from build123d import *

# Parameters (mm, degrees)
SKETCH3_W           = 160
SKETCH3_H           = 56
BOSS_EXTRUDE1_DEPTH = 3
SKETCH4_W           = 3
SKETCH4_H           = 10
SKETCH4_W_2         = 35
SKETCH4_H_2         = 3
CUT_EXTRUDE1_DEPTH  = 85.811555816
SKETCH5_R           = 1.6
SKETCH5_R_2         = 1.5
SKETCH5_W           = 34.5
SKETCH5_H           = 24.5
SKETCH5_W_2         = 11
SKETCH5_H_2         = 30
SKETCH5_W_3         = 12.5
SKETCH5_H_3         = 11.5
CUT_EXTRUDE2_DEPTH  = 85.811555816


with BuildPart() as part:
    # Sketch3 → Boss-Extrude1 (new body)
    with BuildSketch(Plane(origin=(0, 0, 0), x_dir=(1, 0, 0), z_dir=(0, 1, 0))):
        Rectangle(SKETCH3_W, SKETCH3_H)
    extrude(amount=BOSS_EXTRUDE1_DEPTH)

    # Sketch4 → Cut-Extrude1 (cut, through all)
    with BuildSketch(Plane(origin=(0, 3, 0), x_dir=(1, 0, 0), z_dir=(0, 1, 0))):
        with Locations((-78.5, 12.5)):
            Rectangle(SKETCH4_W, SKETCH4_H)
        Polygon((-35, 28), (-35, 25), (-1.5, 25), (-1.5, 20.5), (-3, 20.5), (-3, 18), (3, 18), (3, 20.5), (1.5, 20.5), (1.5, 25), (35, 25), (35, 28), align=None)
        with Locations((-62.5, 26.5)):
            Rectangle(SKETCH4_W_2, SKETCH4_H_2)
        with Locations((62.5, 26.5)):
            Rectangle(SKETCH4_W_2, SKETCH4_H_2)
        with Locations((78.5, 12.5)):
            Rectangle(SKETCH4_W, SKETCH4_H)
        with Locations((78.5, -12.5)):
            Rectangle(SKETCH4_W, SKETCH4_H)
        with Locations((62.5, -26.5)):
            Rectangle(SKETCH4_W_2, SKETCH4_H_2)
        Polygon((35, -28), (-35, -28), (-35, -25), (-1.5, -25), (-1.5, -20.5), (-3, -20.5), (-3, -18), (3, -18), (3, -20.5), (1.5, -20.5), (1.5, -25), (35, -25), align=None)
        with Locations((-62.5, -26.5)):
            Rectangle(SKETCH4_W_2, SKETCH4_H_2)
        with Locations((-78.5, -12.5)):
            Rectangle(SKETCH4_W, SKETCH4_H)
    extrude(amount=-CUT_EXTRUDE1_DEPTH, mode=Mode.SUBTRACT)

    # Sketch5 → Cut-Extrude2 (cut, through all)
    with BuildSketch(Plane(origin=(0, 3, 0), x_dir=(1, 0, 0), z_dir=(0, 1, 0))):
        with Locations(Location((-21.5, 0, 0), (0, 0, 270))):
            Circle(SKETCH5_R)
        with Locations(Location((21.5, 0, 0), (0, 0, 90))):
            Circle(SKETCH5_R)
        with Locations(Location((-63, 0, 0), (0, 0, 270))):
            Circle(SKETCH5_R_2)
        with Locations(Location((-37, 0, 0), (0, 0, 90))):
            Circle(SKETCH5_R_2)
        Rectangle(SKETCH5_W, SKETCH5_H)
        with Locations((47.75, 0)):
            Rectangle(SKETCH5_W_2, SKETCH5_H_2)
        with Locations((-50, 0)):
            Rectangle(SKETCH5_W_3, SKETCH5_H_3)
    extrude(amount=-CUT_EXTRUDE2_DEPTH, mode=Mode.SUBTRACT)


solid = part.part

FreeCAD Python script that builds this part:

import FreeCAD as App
import Part
import Sketcher

doc = App.newDocument("Part")
body = doc.addObject("PartDesign::Body", "Body")

sketch1 = doc.addObject("Sketcher::SketchObject", "Sketch")
body.addObject(sketch1)
sketch1.AttachmentSupport = (doc.XZ_Plane, [""])
sketch1.MapMode = "FlatFace"
sketch1.addGeometry([
    Part.LineSegment(App.Vector(-80, -28, 0), App.Vector(-80, 28, 0)),
    Part.LineSegment(App.Vector(-80, 28, 0), App.Vector(80, 28, 0)),
    Part.LineSegment(App.Vector(80, 28, 0), App.Vector(80, -28, 0)),
    Part.LineSegment(App.Vector(80, -28, 0), App.Vector(-80, -28, 0)),
], False)
sketch1.addConstraint([
    Sketcher.Constraint("Coincident", 0, 2, 1, 1),
    Sketcher.Constraint("Coincident", 1, 2, 2, 1),
    Sketcher.Constraint("Coincident", 2, 2, 3, 1),
    Sketcher.Constraint("Coincident", 3, 2, 0, 1),
    Sketcher.Constraint("Vertical", 0),
    Sketcher.Constraint("Horizontal", 1),
    Sketcher.Constraint("Vertical", 2),
    Sketcher.Constraint("Horizontal", 3),
    Sketcher.Constraint("Symmetric", 0, 2, 2, 2, -1, 1),
    Sketcher.Constraint("DistanceX", 1, 1, 1, 2, 160.0),
    Sketcher.Constraint("DistanceY", 0, 1, 0, 2, 56.0),
])
pad1 = doc.addObject("PartDesign::Pad", "Pad")
body.addObject(pad1)
pad1.Profile = sketch1
pad1.Length = 3
pad1.Reversed = True

sketch2 = doc.addObject("Sketcher::SketchObject", "Sketch001")
body.addObject(sketch2)
sketch2.AttachmentSupport = (doc.XZ_Plane, [""])
sketch2.MapMode = "FlatFace"
sketch2.AttachmentOffset = App.Placement(App.Vector(0, 0, -3), App.Rotation())
sketch2.addGeometry([
    Part.LineSegment(App.Vector(-80, -17.5, 0), App.Vector(-80, -7.5, 0)),
    Part.LineSegment(App.Vector(-80, -7.5, 0), App.Vector(-77, -7.5, 0)),
    Part.LineSegment(App.Vector(-77, -7.5, 0), App.Vector(-77, -17.5, 0)),
    Part.LineSegment(App.Vector(-77, -17.5, 0), App.Vector(-80, -17.5, 0)),
    Part.LineSegment(App.Vector(-35, -28, 0), App.Vector(-35, -25, 0)),
    Part.LineSegment(App.Vector(-35, -25, 0), App.Vector(-1.5, -25, 0)),
    Part.LineSegment(App.Vector(-1.5, -25, 0), App.Vector(-1.5, -20.5, 0)),
    Part.LineSegment(App.Vector(-1.5, -20.5, 0), App.Vector(-3, -20.5, 0)),
    Part.LineSegment(App.Vector(-3, -20.5, 0), App.Vector(-3, -18, 0)),
    Part.LineSegment(App.Vector(-3, -18, 0), App.Vector(3, -18, 0)),
    Part.LineSegment(App.Vector(3, -18, 0), App.Vector(3, -20.5, 0)),
    Part.LineSegment(App.Vector(3, -20.5, 0), App.Vector(1.5, -20.5, 0)),
    Part.LineSegment(App.Vector(1.5, -20.5, 0), App.Vector(1.5, -25, 0)),
    Part.LineSegment(App.Vector(1.5, -25, 0), App.Vector(35, -25, 0)),
    Part.LineSegment(App.Vector(35, -25, 0), App.Vector(35, -28, 0)),
    Part.LineSegment(App.Vector(35, -28, 0), App.Vector(-35, -28, 0)),
    Part.LineSegment(App.Vector(-80, -28, 0), App.Vector(-80, -25, 0)),
    Part.LineSegment(App.Vector(-80, -25, 0), App.Vector(-45, -25, 0)),
    Part.LineSegment(App.Vector(-45, -25, 0), App.Vector(-45, -28, 0)),
    Part.LineSegment(App.Vector(-45, -28, 0), App.Vector(-80, -28, 0)),
    Part.LineSegment(App.Vector(45, -28, 0), App.Vector(45, -25, 0)),
    Part.LineSegment(App.Vector(45, -25, 0), App.Vector(80, -25, 0)),
    Part.LineSegment(App.Vector(80, -25, 0), App.Vector(80, -28, 0)),
    Part.LineSegment(App.Vector(80, -28, 0), App.Vector(45, -28, 0)),
    Part.LineSegment(App.Vector(77, -17.5, 0), App.Vector(77, -7.5, 0)),
    Part.LineSegment(App.Vector(77, -7.5, 0), App.Vector(80, -7.5, 0)),
    Part.LineSegment(App.Vector(80, -7.5, 0), App.Vector(80, -17.5, 0)),
    Part.LineSegment(App.Vector(80, -17.5, 0), App.Vector(77, -17.5, 0)),
    Part.LineSegment(App.Vector(77, 7.5, 0), App.Vector(77, 17.5, 0)),
    Part.LineSegment(App.Vector(77, 17.5, 0), App.Vector(80, 17.5, 0)),
    Part.LineSegment(App.Vector(80, 17.5, 0), App.Vector(80, 7.5, 0)),
    Part.LineSegment(App.Vector(80, 7.5, 0), App.Vector(77, 7.5, 0)),
    Part.LineSegment(App.Vector(45, 25, 0), App.Vector(45, 28, 0)),
    Part.LineSegment(App.Vector(45, 28, 0), App.Vector(80, 28, 0)),
    Part.LineSegment(App.Vector(80, 28, 0), App.Vector(80, 25, 0)),
    Part.LineSegment(App.Vector(80, 25, 0), App.Vector(45, 25, 0)),
    Part.LineSegment(App.Vector(-35, 28, 0), App.Vector(35, 28, 0)),
    Part.LineSegment(App.Vector(35, 28, 0), App.Vector(35, 25, 0)),
    Part.LineSegment(App.Vector(35, 25, 0), App.Vector(1.5, 25, 0)),
    Part.LineSegment(App.Vector(1.5, 25, 0), App.Vector(1.5, 20.5, 0)),
    Part.LineSegment(App.Vector(1.5, 20.5, 0), App.Vector(3, 20.5, 0)),
    Part.LineSegment(App.Vector(3, 20.5, 0), App.Vector(3, 18, 0)),
    Part.LineSegment(App.Vector(3, 18, 0), App.Vector(-3, 18, 0)),
    Part.LineSegment(App.Vector(-3, 18, 0), App.Vector(-3, 20.5, 0)),
    Part.LineSegment(App.Vector(-3, 20.5, 0), App.Vector(-1.5, 20.5, 0)),
    Part.LineSegment(App.Vector(-1.5, 20.5, 0), App.Vector(-1.5, 25, 0)),
    Part.LineSegment(App.Vector(-1.5, 25, 0), App.Vector(-35, 25, 0)),
    Part.LineSegment(App.Vector(-35, 25, 0), App.Vector(-35, 28, 0)),
    Part.LineSegment(App.Vector(-80, 25, 0), App.Vector(-80, 28, 0)),
    Part.LineSegment(App.Vector(-80, 28, 0), App.Vector(-45, 28, 0)),
    Part.LineSegment(App.Vector(-45, 28, 0), App.Vector(-45, 25, 0)),
    Part.LineSegment(App.Vector(-45, 25, 0), App.Vector(-80, 25, 0)),
    Part.LineSegment(App.Vector(-80, 7.5, 0), App.Vector(-80, 17.5, 0)),
    Part.LineSegment(App.Vector(-80, 17.5, 0), App.Vector(-77, 17.5, 0)),
    Part.LineSegment(App.Vector(-77, 17.5, 0), App.Vector(-77, 7.5, 0)),
    Part.LineSegment(App.Vector(-77, 7.5, 0), App.Vector(-80, 7.5, 0)),
], False)
sketch2.addConstraint([
    Sketcher.Constraint("Coincident", 0, 2, 1, 1),
    Sketcher.Constraint("Coincident", 1, 2, 2, 1),
    Sketcher.Constraint("Coincident", 2, 2, 3, 1),
    Sketcher.Constraint("Coincident", 3, 2, 0, 1),
    Sketcher.Constraint("Coincident", 4, 2, 5, 1),
    Sketcher.Constraint("Coincident", 5, 2, 6, 1),
    Sketcher.Constraint("Coincident", 6, 2, 7, 1),
    Sketcher.Constraint("Coincident", 7, 2, 8, 1),
    Sketcher.Constraint("Coincident", 8, 2, 9, 1),
    Sketcher.Constraint("Coincident", 9, 2, 10, 1),
    Sketcher.Constraint("Coincident", 10, 2, 11, 1),
    Sketcher.Constraint("Coincident", 11, 2, 12, 1),
    Sketcher.Constraint("Coincident", 12, 2, 13, 1),
    Sketcher.Constraint("Coincident", 13, 2, 14, 1),
    Sketcher.Constraint("Coincident", 14, 2, 15, 1),
    Sketcher.Constraint("Coincident", 15, 2, 4, 1),
    Sketcher.Constraint("Coincident", 16, 2, 17, 1),
    Sketcher.Constraint("Coincident", 17, 2, 18, 1),
    Sketcher.Constraint("Coincident", 18, 2, 19, 1),
    Sketcher.Constraint("Coincident", 19, 2, 16, 1),
    Sketcher.Constraint("Coincident", 20, 2, 21, 1),
    Sketcher.Constraint("Coincident", 21, 2, 22, 1),
    Sketcher.Constraint("Coincident", 22, 2, 23, 1),
    Sketcher.Constraint("Coincident", 23, 2, 20, 1),
    Sketcher.Constraint("Coincident", 24, 2, 25, 1),
    Sketcher.Constraint("Coincident", 25, 2, 26, 1),
    Sketcher.Constraint("Coincident", 26, 2, 27, 1),
    Sketcher.Constraint("Coincident", 27, 2, 24, 1),
    Sketcher.Constraint("Coincident", 28, 2, 29, 1),
    Sketcher.Constraint("Coincident", 29, 2, 30, 1),
    Sketcher.Constraint("Coincident", 30, 2, 31, 1),
    Sketcher.Constraint("Coincident", 31, 2, 28, 1),
    Sketcher.Constraint("Coincident", 32, 2, 33, 1),
    Sketcher.Constraint("Coincident", 33, 2, 34, 1),
    Sketcher.Constraint("Coincident", 34, 2, 35, 1),
    Sketcher.Constraint("Coincident", 35, 2, 32, 1),
    Sketcher.Constraint("Coincident", 36, 2, 37, 1),
    Sketcher.Constraint("Coincident", 37, 2, 38, 1),
    Sketcher.Constraint("Coincident", 38, 2, 39, 1),
    Sketcher.Constraint("Coincident", 39, 2, 40, 1),
    Sketcher.Constraint("Coincident", 40, 2, 41, 1),
    Sketcher.Constraint("Coincident", 41, 2, 42, 1),
    Sketcher.Constraint("Coincident", 42, 2, 43, 1),
    Sketcher.Constraint("Coincident", 43, 2, 44, 1),
    Sketcher.Constraint("Coincident", 44, 2, 45, 1),
    Sketcher.Constraint("Coincident", 45, 2, 46, 1),
    Sketcher.Constraint("Coincident", 46, 2, 47, 1),
    Sketcher.Constraint("Coincident", 47, 2, 36, 1),
    Sketcher.Constraint("Coincident", 48, 2, 49, 1),
    Sketcher.Constraint("Coincident", 49, 2, 50, 1),
    Sketcher.Constraint("Coincident", 50, 2, 51, 1),
    Sketcher.Constraint("Coincident", 51, 2, 48, 1),
    Sketcher.Constraint("Coincident", 52, 2, 53, 1),
    Sketcher.Constraint("Coincident", 53, 2, 54, 1),
    Sketcher.Constraint("Coincident", 54, 2, 55, 1),
    Sketcher.Constraint("Coincident", 55, 2, 52, 1),
    Sketcher.Constraint("Vertical", 0),
    Sketcher.Constraint("Horizontal", 1),
    Sketcher.Constraint("Vertical", 2),
    Sketcher.Constraint("Horizontal", 3),
    Sketcher.Constraint("Vertical", 4),
    Sketcher.Constraint("Horizontal", 5),
    Sketcher.Constraint("Vertical", 6),
    Sketcher.Constraint("Horizontal", 7),
    Sketcher.Constraint("Vertical", 8),
    Sketcher.Constraint("Horizontal", 9),
    Sketcher.Constraint("Vertical", 10),
    Sketcher.Constraint("Horizontal", 11),
    Sketcher.Constraint("Vertical", 12),
    Sketcher.Constraint("Horizontal", 13),
    Sketcher.Constraint("Vertical", 14),
    Sketcher.Constraint("Horizontal", 15),
    Sketcher.Constraint("Vertical", 16),
    Sketcher.Constraint("Horizontal", 17),
    Sketcher.Constraint("Vertical", 18),
    Sketcher.Constraint("Horizontal", 19),
    Sketcher.Constraint("Vertical", 20),
    Sketcher.Constraint("Horizontal", 21),
    Sketcher.Constraint("Vertical", 22),
    Sketcher.Constraint("Horizontal", 23),
    Sketcher.Constraint("Vertical", 24),
    Sketcher.Constraint("Horizontal", 25),
    Sketcher.Constraint("Vertical", 26),
    Sketcher.Constraint("Horizontal", 27),
    Sketcher.Constraint("Vertical", 28),
    Sketcher.Constraint("Horizontal", 29),
    Sketcher.Constraint("Vertical", 30),
    Sketcher.Constraint("Horizontal", 31),
    Sketcher.Constraint("Vertical", 32),
    Sketcher.Constraint("Horizontal", 33),
    Sketcher.Constraint("Vertical", 34),
    Sketcher.Constraint("Horizontal", 35),
    Sketcher.Constraint("Horizontal", 36),
    Sketcher.Constraint("Vertical", 37),
    Sketcher.Constraint("Horizontal", 38),
    Sketcher.Constraint("Vertical", 39),
    Sketcher.Constraint("Horizontal", 40),
    Sketcher.Constraint("Vertical", 41),
    Sketcher.Constraint("Horizontal", 42),
    Sketcher.Constraint("Vertical", 43),
    Sketcher.Constraint("Horizontal", 44),
    Sketcher.Constraint("Vertical", 45),
    Sketcher.Constraint("Horizontal", 46),
    Sketcher.Constraint("Vertical", 47),
    Sketcher.Constraint("Vertical", 48),
    Sketcher.Constraint("Horizontal", 49),
    Sketcher.Constraint("Vertical", 50),
    Sketcher.Constraint("Horizontal", 51),
    Sketcher.Constraint("Vertical", 52),
    Sketcher.Constraint("Horizontal", 53),
    Sketcher.Constraint("Vertical", 54),
    Sketcher.Constraint("Horizontal", 55),
    Sketcher.Constraint("Symmetric", 2, 2, 28, 2, -1, 1),
    Sketcher.Constraint("Symmetric", 0, 2, 30, 2, -1, 1),
    Sketcher.Constraint("Symmetric", 18, 2, 32, 2, -1, 1),
    Sketcher.Constraint("Symmetric", 16, 2, 34, 2, -1, 1),
    Sketcher.Constraint("Symmetric", 15, 2, 36, 2, -1, 1),
    Sketcher.Constraint("Symmetric", 5, 2, 38, 2, -1, 1),
    Sketcher.Constraint("Symmetric", 7, 2, 40, 2, -1, 1),
    Sketcher.Constraint("Symmetric", 9, 2, 42, 2, -1, 1),
    Sketcher.Constraint("Symmetric", 11, 2, 44, 2, -1, 1),
    Sketcher.Constraint("Symmetric", 13, 2, 46, 2, -1, 1),
    Sketcher.Constraint("Symmetric", 22, 2, 48, 2, -1, 1),
    Sketcher.Constraint("Symmetric", 20, 2, 50, 2, -1, 1),
    Sketcher.Constraint("Symmetric", 26, 2, 52, 2, -1, 1),
    Sketcher.Constraint("Symmetric", 24, 2, 54, 2, -1, 1),
    Sketcher.Constraint("Symmetric", 7, 2, 10, 2, -2),
    Sketcher.Constraint("Symmetric", 5, 2, 12, 2, -2),
    Sketcher.Constraint("Symmetric", 17, 2, 20, 2, -2),
    Sketcher.Constraint("Symmetric", 19, 2, 22, 2, -2),
    Sketcher.Constraint("Symmetric", 1, 2, 24, 2, -2),
    Sketcher.Constraint("Symmetric", 3, 2, 26, 2, -2),
    Sketcher.Constraint("Horizontal", 13, 2, 16, 2),
    Sketcher.Constraint("Horizontal", 15, 2, 18, 2),
    Sketcher.Constraint("Vertical", 3, 2, 16, 2),
    Sketcher.Constraint("Vertical", 14, 2, 36, 2),
    Sketcher.Constraint("Equal", 55, 4),
    Sketcher.Constraint("DistanceX", 1, 1, 1, 2, 3.0),
    Sketcher.Constraint("DistanceX", 9, 1, 9, 2, 6.0),
    Sketcher.Constraint("DistanceX", 15, 2, 15, 1, 70.0),
    Sketcher.Constraint("DistanceX", 17, 1, 17, 2, 35.0),
    Sketcher.Constraint("DistanceY", 0, 1, 0, 2, 10.0),
    Sketcher.Constraint("DistanceX", 5, 1, 5, 2, 33.5),
    Sketcher.Constraint("DistanceY", 6, 1, 6, 2, 4.5),
    Sketcher.Constraint("DistanceY", 8, 1, 8, 2, 2.5),
    Sketcher.Constraint("DistanceX", 0, 2, -1, 1, 80.0),
    Sketcher.Constraint("DistanceY", 4, 2, -1, 1, 25.0),
    Sketcher.Constraint("DistanceY", 6, 2, 2, 2, 3.0),
])
pocket1 = doc.addObject("PartDesign::Pocket", "Pocket")
body.addObject(pocket1)
pocket1.Profile = sketch2
pocket1.Type = "ThroughAll"
pocket1.Reversed = True

sketch3 = doc.addObject("Sketcher::SketchObject", "Sketch002")
body.addObject(sketch3)
sketch3.AttachmentSupport = (doc.XZ_Plane, [""])
sketch3.MapMode = "FlatFace"
sketch3.AttachmentOffset = App.Placement(App.Vector(0, 0, -3), App.Rotation())
sketch3.addGeometry([
    Part.Circle(App.Vector(-21.5, 0, 0), App.Vector(0, 0, 1), 1.6),
    Part.Circle(App.Vector(21.5, 0, 0), App.Vector(0, 0, 1), 1.6),
    Part.Circle(App.Vector(-63, 0, 0), App.Vector(0, 0, 1), 1.5),
    Part.Circle(App.Vector(-37, 0, 0), App.Vector(0, 0, 1), 1.5),
    Part.LineSegment(App.Vector(-17.2, -12.2, 0), App.Vector(-17.2, 12.2, 0)),
    Part.LineSegment(App.Vector(-17.2, 12.2, 0), App.Vector(17.2, 12.2, 0)),
    Part.LineSegment(App.Vector(17.2, 12.2, 0), App.Vector(17.2, -12.2, 0)),
    Part.LineSegment(App.Vector(17.2, -12.2, 0), App.Vector(-17.2, -12.2, 0)),
    Part.LineSegment(App.Vector(42.2, -15, 0), App.Vector(42.2, 15, 0)),
    Part.LineSegment(App.Vector(42.2, 15, 0), App.Vector(53.2, 15, 0)),
    Part.LineSegment(App.Vector(53.2, 15, 0), App.Vector(53.2, -15, 0)),
    Part.LineSegment(App.Vector(53.2, -15, 0), App.Vector(42.2, -15, 0)),
    Part.LineSegment(App.Vector(-56.2, -5.8, 0), App.Vector(-56.2, 5.8, 0)),
    Part.LineSegment(App.Vector(-56.2, 5.8, 0), App.Vector(-43.8, 5.8, 0)),
    Part.LineSegment(App.Vector(-43.8, 5.8, 0), App.Vector(-43.8, -5.8, 0)),
    Part.LineSegment(App.Vector(-43.8, -5.8, 0), App.Vector(-56.2, -5.8, 0)),
], False)
sketch3.addConstraint([
    Sketcher.Constraint("Coincident", 4, 2, 5, 1),
    Sketcher.Constraint("Coincident", 5, 2, 6, 1),
    Sketcher.Constraint("Coincident", 6, 2, 7, 1),
    Sketcher.Constraint("Coincident", 7, 2, 4, 1),
    Sketcher.Constraint("Coincident", 8, 2, 9, 1),
    Sketcher.Constraint("Coincident", 9, 2, 10, 1),
    Sketcher.Constraint("Coincident", 10, 2, 11, 1),
    Sketcher.Constraint("Coincident", 11, 2, 8, 1),
    Sketcher.Constraint("Coincident", 12, 2, 13, 1),
    Sketcher.Constraint("Coincident", 13, 2, 14, 1),
    Sketcher.Constraint("Coincident", 14, 2, 15, 1),
    Sketcher.Constraint("Coincident", 15, 2, 12, 1),
    Sketcher.Constraint("Vertical", 4),
    Sketcher.Constraint("Horizontal", 5),
    Sketcher.Constraint("Vertical", 6),
    Sketcher.Constraint("Horizontal", 7),
    Sketcher.Constraint("Vertical", 8),
    Sketcher.Constraint("Horizontal", 9),
    Sketcher.Constraint("Vertical", 10),
    Sketcher.Constraint("Horizontal", 11),
    Sketcher.Constraint("Vertical", 12),
    Sketcher.Constraint("Horizontal", 13),
    Sketcher.Constraint("Vertical", 14),
    Sketcher.Constraint("Horizontal", 15),
    Sketcher.Constraint("Equal", 0, 1),
    Sketcher.Constraint("Equal", 2, 3),
    Sketcher.Constraint("Symmetric", 0, 3, 1, 3, -1, 1),
    Sketcher.Constraint("Symmetric", 4, 2, 6, 2, -1, 1),
    Sketcher.Constraint("PointOnObject", 0, 3, -1),
    Sketcher.Constraint("PointOnObject", 2, 3, -1),
    Sketcher.Constraint("PointOnObject", 3, 3, -1),
    Sketcher.Constraint("Diameter", 2, 3.0),
    Sketcher.Constraint("Diameter", 0, 3.2),
    Sketcher.Constraint("DistanceX", 9, 1, 9, 2, 11.0),
    Sketcher.Constraint("DistanceY", 8, 1, 8, 2, 30.0),
    Sketcher.Constraint("DistanceX", 5, 1, 5, 2, 34.5),
    Sketcher.Constraint("DistanceX", 13, 1, 13, 2, 12.5),
    Sketcher.Constraint("DistanceY", 4, 1, 4, 2, 24.5),
    Sketcher.Constraint("DistanceY", 12, 1, 12, 2, 11.5),
    Sketcher.Constraint("DistanceX", 2, 3, -1, 1, 63.0),
    Sketcher.Constraint("DistanceX", 3, 3, -1, 1, 37.0),
    Sketcher.Constraint("DistanceY", -1, 1, 8, 2, 15.0),
    Sketcher.Constraint("DistanceX", 0, 3, 1, 3, 43.0),
    Sketcher.Constraint("DistanceX", 5, 2, 8, 2, 25.0),
    Sketcher.Constraint("DistanceX", 12, 2, 4, 2, 39.0),
    Sketcher.Constraint("DistanceY", 7, 2, 12, 2, 18.0),
])
pocket2 = doc.addObject("PartDesign::Pocket", "Pocket001")
body.addObject(pocket2)
pocket2.Profile = sketch3
pocket2.Type = "ThroughAll"
pocket2.Reversed = True

doc.recompute()
